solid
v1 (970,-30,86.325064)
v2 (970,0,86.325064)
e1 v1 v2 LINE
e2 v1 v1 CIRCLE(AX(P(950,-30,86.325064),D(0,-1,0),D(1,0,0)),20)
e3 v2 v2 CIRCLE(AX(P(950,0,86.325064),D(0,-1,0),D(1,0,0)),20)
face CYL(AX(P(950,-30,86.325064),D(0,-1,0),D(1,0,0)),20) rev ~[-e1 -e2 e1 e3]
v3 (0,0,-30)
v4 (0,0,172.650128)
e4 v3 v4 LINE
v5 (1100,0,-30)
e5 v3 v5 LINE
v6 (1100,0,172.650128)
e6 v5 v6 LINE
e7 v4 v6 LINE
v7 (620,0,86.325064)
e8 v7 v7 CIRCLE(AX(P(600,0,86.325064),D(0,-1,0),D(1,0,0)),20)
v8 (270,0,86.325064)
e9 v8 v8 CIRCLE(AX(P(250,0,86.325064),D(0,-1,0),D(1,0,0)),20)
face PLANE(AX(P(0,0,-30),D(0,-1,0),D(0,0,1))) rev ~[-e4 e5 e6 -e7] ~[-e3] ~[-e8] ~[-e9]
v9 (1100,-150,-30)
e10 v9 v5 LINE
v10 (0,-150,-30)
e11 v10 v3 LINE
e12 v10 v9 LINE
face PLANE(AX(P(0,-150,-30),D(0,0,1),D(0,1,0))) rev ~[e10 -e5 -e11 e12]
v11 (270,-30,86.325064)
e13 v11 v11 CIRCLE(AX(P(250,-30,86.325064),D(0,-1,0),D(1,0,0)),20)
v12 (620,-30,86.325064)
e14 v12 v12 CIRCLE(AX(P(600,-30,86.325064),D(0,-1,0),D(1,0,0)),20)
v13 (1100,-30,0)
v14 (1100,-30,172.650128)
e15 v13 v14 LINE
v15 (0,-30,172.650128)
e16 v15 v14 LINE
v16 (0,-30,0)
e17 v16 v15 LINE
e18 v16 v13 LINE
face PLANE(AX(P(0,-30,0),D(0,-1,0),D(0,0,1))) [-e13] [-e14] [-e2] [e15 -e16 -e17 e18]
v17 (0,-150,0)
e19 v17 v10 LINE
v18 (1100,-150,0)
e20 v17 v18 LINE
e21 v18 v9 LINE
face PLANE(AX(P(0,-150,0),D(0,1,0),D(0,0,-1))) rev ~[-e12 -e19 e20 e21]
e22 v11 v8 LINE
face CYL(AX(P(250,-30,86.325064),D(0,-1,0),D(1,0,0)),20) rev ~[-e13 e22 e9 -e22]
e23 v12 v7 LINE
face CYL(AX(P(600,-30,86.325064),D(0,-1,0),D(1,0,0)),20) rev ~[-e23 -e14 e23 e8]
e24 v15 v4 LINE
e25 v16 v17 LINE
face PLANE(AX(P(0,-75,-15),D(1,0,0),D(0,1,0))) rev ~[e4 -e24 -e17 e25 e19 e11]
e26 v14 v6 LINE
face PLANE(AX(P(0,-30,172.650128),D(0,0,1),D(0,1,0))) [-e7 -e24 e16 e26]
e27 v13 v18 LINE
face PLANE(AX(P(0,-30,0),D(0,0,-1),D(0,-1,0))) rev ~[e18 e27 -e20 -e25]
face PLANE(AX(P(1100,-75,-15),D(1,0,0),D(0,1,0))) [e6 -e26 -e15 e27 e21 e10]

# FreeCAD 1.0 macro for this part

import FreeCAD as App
import Part
import Sketcher
from FreeCAD import Vector
Q = App.Units.Quantity

doc = App.newDocument("Part")
body = doc.addObject("PartDesign::Body", "Body")

sketch1 = body.newObject("Sketcher::SketchObject", "Sketch")
sketch1.AttachmentSupport = (doc.getObject("YZ_Plane"), [""])
sketch1.MapMode = "FlatFace"
sketch1.addGeometry([
    Part.LineSegment(Vector(-150, -30, 0), Vector(0, -30, 0)),
    Part.LineSegment(Vector(0, -30, 0), Vector(0, 173, 0)),
    Part.LineSegment(Vector(0, 173, 0), Vector(-30, 173, 0)),
    Part.LineSegment(Vector(-30, 173, 0), Vector(-30, 0, 0)),
    Part.LineSegment(Vector(-30, 0, 0), Vector(-150, 0, 0)),
    Part.LineSegment(Vector(-150, 0, 0), Vector(-150, -30, 0)),
], False)
sketch1.addConstraint([
    Sketcher.Constraint("Coincident", 0, 2, 1, 1),
    Sketcher.Constraint("Coincident", 1, 2, 2, 1),
    Sketcher.Constraint("Coincident", 2, 2, 3, 1),
    Sketcher.Constraint("Coincident", 3, 2, 4, 1),
    Sketcher.Constraint("Coincident", 4, 2, 5, 1),
    Sketcher.Constraint("Coincident", 5, 2, 0, 1),
    Sketcher.Constraint("Horizontal", 0),
    Sketcher.Constraint("Vertical", 1),
    Sketcher.Constraint("Horizontal", 2),
    Sketcher.Constraint("Vertical", 3),
    Sketcher.Constraint("Horizontal", 4),
    Sketcher.Constraint("Vertical", 5),
    Sketcher.Constraint("PointOnObject", 0, 2, -2),
    Sketcher.Constraint("PointOnObject", 3, 2, -1),
    Sketcher.Constraint("Equal", 2, 5),
    Sketcher.Constraint("DistanceX", 0, 1, 0, 2, Q("150 mm")),
    Sketcher.Constraint("DistanceX", 2, 2, 2, 1, Q("30 mm")),
    Sketcher.Constraint("DistanceY", 1, 1, 1, 2, Q("202.650128 mm")),
])
pad1 = body.newObject("PartDesign::Pad", "Pad")
pad1.Profile = sketch1
pad1.Length = 1100

sketch2 = body.newObject("Sketcher::SketchObject", "Sketch001")
sketch2.AttachmentSupport = (doc.getObject("XZ_Plane"), [""])
sketch2.MapMode = "FlatFace"
sketch2.AttachmentOffset = App.Placement(Vector(0, 0, 30), App.Rotation())
sketch2.addGeometry([
    Part.Circle(Vector(250, 86, 0), Vector(0, 0, 1), 20),
    Part.Circle(Vector(600, 86, 0), Vector(0, 0, 1), 20),
    Part.Circle(Vector(950, 86, 0), Vector(0, 0, 1), 20),
    Part.Circle(Vector(1300, 86, 0), Vector(0, 0, 1), 20),
], False)
sketch2.addConstraint([
    Sketcher.Constraint("Equal", 0, 1),
    Sketcher.Constraint("Equal", 1, 2),
    Sketcher.Constraint("Equal", 2, 3),
    Sketcher.Constraint("Horizontal", 0, 3, 1, 3),
    Sketcher.Constraint("Horizontal", 1, 3, 2, 3),
    Sketcher.Constraint("Horizontal", 2, 3, 3, 3),
    Sketcher.Constraint("Diameter", 0, Q("40 mm")),
    Sketcher.Constraint("DistanceX", -1, 1, 0, 3, Q("250 mm")),
    Sketcher.Constraint("DistanceX", -1, 1, 1, 3, Q("600 mm")),
    Sketcher.Constraint("DistanceX", -1, 1, 2, 3, Q("950 mm")),
    Sketcher.Constraint("DistanceX", -1, 1, 3, 3, Q("1300 mm")),
    Sketcher.Constraint("DistanceY", -1, 1, 0, 3, Q("86.325064 mm")),
])
pocket1 = body.newObject("PartDesign::Pocket", "Pocket")
pocket1.Profile = sketch2
pocket1.Type = "ThroughAll"

doc.recompute()
